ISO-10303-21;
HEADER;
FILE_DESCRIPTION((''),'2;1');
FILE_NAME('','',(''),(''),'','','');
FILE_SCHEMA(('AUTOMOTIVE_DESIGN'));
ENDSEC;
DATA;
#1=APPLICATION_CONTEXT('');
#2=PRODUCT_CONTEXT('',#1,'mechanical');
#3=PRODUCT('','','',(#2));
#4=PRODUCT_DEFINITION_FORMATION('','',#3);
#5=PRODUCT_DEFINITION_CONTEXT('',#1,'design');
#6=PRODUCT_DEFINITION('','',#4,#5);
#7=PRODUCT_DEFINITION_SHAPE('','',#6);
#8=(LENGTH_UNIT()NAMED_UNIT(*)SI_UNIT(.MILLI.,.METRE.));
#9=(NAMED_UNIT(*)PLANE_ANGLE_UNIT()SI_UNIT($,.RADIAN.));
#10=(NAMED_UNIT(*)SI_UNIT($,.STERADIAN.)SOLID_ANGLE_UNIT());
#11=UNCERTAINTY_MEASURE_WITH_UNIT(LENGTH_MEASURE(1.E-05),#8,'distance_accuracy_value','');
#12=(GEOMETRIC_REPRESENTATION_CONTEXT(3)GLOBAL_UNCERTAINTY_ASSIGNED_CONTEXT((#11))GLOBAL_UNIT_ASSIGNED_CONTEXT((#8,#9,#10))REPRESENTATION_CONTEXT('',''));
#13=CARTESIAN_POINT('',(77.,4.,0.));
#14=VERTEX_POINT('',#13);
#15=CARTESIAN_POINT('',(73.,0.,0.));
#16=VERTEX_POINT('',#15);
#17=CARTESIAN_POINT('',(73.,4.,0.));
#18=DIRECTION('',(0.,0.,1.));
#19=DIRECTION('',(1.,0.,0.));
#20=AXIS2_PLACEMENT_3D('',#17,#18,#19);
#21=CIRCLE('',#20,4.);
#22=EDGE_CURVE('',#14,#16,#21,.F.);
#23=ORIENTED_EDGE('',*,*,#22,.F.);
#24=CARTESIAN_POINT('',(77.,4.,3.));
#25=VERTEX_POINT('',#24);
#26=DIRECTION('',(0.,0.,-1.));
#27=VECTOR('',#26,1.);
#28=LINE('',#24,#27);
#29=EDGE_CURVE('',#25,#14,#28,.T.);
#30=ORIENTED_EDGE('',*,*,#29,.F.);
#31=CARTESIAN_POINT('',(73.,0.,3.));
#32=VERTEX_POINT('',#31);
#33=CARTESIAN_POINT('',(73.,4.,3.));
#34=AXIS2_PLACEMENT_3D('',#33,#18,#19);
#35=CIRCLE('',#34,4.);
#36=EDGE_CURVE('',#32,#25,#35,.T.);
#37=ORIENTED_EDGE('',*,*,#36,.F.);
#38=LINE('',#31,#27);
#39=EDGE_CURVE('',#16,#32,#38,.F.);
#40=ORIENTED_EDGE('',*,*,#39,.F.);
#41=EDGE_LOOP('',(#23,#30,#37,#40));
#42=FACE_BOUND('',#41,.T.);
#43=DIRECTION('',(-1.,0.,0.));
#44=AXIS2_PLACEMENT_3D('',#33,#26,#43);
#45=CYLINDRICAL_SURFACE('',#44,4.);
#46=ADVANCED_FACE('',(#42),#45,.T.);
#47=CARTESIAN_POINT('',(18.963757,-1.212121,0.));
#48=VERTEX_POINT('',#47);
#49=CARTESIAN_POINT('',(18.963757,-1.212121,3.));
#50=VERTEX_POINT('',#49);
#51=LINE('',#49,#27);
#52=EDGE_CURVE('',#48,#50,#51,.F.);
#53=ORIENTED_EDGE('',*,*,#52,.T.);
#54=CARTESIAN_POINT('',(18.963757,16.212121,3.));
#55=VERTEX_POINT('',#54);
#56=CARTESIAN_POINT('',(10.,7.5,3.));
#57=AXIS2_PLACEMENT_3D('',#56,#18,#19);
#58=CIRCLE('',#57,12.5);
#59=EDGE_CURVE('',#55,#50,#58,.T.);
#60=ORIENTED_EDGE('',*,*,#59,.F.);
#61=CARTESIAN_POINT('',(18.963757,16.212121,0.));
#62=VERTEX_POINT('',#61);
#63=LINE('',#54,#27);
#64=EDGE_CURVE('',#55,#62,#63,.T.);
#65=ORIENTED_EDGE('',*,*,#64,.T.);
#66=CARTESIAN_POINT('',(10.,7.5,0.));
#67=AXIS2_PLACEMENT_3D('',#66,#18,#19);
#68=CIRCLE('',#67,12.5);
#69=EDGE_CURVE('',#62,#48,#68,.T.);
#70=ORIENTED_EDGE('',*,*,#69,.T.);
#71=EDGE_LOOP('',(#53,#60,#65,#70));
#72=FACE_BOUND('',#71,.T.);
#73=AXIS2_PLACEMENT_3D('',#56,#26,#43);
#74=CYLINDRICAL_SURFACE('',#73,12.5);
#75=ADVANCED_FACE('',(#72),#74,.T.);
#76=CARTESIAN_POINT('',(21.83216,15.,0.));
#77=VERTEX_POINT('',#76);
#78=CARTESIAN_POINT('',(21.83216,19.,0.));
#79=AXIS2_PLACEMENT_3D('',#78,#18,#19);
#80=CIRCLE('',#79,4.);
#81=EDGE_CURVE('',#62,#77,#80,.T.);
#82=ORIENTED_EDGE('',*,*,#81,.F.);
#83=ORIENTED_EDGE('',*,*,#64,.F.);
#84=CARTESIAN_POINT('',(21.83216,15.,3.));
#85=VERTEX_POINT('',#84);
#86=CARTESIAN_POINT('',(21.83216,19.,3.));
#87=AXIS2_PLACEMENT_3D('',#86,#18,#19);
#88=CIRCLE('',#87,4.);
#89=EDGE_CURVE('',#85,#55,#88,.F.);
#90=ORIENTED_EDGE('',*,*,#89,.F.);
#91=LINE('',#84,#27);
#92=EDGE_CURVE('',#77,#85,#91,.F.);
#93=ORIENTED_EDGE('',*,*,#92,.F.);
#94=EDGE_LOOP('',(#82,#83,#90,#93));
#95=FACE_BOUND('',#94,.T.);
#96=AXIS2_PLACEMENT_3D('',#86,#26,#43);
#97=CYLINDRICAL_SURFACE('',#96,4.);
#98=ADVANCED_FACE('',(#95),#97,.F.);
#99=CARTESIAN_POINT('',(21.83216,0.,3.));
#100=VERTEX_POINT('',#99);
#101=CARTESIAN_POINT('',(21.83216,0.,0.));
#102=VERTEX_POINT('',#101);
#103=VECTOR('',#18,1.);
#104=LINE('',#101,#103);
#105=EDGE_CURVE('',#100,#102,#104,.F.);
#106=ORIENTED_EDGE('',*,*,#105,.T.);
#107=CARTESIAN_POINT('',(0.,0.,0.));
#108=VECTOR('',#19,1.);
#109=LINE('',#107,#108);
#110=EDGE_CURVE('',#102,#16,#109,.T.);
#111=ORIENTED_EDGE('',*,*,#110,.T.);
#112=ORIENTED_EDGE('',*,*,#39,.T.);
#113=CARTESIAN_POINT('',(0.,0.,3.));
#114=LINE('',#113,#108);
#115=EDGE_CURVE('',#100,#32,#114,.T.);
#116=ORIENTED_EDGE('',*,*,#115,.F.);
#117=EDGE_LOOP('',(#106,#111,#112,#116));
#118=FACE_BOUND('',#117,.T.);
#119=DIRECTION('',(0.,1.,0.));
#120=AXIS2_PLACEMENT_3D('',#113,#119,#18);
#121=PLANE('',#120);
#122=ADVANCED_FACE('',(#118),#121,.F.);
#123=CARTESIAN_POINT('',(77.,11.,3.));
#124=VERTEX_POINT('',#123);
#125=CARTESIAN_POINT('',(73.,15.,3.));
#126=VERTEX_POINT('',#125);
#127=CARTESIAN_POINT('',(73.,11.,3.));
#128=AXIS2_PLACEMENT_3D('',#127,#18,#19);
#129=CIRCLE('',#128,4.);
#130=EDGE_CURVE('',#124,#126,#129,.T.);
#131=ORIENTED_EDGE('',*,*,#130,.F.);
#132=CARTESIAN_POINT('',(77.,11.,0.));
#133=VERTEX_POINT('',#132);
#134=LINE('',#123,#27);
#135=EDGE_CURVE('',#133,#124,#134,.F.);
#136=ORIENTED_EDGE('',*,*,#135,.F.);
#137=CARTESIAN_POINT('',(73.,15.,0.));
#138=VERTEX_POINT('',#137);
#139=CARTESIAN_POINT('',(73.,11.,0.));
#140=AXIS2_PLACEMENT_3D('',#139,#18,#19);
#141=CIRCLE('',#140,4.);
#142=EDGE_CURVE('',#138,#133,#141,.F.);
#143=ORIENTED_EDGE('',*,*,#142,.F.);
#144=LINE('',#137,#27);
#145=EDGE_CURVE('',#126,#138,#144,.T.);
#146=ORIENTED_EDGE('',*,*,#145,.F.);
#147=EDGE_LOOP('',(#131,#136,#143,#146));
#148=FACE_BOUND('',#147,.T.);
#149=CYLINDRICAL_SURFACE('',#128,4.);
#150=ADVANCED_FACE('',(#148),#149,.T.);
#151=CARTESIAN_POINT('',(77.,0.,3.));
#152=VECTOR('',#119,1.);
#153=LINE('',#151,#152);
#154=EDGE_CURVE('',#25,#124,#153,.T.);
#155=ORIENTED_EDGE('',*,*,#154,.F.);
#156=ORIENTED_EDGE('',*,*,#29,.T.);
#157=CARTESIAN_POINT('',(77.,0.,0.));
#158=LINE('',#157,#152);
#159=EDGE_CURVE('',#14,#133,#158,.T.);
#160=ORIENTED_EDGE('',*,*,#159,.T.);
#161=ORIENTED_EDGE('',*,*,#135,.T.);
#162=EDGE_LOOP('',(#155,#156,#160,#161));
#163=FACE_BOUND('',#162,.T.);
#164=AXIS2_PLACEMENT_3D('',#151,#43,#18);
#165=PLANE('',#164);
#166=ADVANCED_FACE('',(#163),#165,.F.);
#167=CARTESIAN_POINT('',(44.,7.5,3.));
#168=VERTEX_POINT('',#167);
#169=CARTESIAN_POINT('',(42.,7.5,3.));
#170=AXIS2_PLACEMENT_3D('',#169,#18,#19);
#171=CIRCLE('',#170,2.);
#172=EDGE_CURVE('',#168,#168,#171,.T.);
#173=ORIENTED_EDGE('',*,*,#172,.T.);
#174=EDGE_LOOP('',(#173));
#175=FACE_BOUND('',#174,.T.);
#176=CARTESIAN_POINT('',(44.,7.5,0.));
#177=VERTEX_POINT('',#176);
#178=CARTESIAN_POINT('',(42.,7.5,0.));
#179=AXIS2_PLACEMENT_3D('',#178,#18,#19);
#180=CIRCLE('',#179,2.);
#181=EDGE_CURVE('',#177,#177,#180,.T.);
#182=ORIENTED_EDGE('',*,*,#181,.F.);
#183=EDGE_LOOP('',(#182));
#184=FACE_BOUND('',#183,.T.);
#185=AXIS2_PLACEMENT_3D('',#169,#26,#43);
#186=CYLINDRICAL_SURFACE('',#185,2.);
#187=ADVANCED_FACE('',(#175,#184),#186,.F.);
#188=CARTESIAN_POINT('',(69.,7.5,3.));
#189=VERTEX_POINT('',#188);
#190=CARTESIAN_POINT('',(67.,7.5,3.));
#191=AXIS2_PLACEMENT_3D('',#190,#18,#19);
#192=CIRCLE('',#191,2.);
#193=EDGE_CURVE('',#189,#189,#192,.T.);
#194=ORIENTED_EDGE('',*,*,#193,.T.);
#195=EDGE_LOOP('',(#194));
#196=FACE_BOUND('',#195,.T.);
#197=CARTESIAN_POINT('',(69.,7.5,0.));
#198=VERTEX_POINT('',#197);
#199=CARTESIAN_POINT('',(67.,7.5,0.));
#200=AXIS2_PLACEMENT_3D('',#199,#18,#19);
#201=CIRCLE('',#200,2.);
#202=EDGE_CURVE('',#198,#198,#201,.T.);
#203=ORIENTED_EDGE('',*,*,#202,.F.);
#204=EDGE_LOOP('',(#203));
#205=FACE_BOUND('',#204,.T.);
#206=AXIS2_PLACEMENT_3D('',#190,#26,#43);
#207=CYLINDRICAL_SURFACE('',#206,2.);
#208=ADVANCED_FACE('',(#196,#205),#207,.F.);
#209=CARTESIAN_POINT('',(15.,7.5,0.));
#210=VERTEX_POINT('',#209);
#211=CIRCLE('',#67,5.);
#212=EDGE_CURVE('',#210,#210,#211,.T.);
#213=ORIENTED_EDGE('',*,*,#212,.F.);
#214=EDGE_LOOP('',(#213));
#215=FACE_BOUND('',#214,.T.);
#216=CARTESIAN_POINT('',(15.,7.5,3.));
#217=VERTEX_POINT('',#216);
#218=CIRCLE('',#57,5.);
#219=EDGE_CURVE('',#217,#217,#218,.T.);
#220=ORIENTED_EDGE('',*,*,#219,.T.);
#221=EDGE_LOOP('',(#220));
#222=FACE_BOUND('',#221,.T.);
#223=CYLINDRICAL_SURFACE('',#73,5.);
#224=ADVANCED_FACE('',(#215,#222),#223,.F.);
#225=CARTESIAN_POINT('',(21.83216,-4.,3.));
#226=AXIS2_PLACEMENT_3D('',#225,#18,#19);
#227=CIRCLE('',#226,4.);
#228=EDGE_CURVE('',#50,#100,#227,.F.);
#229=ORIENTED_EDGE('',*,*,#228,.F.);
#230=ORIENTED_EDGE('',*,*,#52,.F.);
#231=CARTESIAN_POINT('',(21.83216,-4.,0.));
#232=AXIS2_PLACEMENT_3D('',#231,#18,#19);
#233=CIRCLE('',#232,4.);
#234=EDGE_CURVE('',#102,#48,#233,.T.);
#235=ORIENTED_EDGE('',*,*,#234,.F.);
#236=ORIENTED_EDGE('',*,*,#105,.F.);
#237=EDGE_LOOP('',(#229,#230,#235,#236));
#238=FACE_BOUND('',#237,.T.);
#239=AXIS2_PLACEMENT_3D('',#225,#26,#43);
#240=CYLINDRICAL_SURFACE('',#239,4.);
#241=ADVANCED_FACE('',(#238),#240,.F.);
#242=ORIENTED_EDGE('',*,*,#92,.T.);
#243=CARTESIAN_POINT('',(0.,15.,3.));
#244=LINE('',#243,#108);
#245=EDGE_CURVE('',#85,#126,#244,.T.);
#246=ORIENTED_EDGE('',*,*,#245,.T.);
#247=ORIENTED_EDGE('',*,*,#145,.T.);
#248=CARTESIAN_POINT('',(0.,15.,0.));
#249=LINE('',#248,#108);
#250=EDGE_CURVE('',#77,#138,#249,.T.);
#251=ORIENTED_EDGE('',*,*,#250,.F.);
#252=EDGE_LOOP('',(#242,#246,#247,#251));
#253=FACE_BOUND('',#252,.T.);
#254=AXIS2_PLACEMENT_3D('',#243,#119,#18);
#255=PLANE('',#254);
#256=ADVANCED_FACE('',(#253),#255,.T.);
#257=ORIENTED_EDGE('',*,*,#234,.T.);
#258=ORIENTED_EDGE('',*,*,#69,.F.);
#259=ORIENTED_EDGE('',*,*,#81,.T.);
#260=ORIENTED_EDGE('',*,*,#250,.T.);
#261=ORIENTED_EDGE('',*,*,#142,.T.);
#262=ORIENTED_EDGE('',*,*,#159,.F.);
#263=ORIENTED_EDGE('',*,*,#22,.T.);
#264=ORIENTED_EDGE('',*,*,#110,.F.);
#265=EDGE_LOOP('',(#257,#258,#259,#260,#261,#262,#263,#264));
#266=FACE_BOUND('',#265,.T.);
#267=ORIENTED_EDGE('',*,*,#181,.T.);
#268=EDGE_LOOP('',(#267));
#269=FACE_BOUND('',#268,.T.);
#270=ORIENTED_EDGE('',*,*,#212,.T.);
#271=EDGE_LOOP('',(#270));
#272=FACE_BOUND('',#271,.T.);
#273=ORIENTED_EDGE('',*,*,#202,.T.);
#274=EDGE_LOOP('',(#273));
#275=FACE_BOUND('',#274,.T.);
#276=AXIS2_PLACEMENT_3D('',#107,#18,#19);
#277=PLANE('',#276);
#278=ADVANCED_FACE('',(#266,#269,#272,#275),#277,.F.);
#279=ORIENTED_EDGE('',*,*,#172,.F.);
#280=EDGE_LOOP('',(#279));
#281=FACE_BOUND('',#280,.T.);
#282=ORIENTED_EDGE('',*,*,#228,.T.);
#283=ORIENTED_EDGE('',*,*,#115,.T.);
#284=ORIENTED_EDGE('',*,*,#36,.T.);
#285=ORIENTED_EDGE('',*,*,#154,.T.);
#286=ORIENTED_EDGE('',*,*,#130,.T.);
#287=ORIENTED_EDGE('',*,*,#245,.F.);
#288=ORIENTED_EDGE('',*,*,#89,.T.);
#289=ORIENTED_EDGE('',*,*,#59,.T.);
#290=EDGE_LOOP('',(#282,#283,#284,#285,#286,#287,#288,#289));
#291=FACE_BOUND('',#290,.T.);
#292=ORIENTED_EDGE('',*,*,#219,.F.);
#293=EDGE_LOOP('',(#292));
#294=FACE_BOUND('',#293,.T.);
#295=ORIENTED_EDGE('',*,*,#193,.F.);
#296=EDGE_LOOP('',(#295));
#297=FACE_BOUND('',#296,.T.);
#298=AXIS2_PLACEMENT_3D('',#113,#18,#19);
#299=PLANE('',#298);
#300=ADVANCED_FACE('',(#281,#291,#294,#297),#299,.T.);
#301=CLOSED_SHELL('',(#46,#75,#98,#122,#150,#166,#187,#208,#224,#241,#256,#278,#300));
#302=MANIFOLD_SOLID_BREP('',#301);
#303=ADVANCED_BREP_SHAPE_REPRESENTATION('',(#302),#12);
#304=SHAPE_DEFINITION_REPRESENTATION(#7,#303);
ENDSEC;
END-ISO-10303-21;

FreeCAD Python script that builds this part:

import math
import FreeCAD as App
import Part
import Sketcher

V = App.Vector
Q = App.Units.Quantity


def edges_at(feature, points):
    """Names of the edges that pass closest to the given points."""
    edges = feature.Shape.Edges
    near = lambda p: min(range(len(edges)), key=lambda i: edges[i].distToShape(Part.Vertex(*p))[0])
    return sorted({f"Edge{near(p) + 1}" for p in points})

doc = App.newDocument("Part")
body = doc.addObject("PartDesign::Body", "Body")

# Sketch on XY plane
sketch1 = doc.addObject("Sketcher::SketchObject", "Sketch")
body.addObject(sketch1)
sketch1.AttachmentSupport = (doc.XY_Plane, [""])
sketch1.MapMode = "FlatFace"
sketch1.addGeometry([
    Part.LineSegment(V(20, 0, 0), V(77, 0, 0)),  # 0
    Part.LineSegment(V(77, 0, 0), V(77, 15, 0)),  # 1
    Part.LineSegment(V(77, 15, 0), V(20, 15, 0)),  # 2
    Part.ArcOfCircle(Part.Circle(V(10, 7.5, 0), V(0, 0, 1), 12.5), math.radians(36.869898), math.radians(323.130102)),  # 3
    Part.Circle(V(10, 7.5, 0), V(0, 0, 1), 5),  # 4
    Part.Circle(V(42, 7.5, 0), V(0, 0, 1), 2),  # 5
    Part.Circle(V(67, 7.5, 0), V(0, 0, 1), 2),  # 6
], False)
sketch1.addConstraint([
    Sketcher.Constraint("Coincident", 0, 2, 1, 1),
    Sketcher.Constraint("Coincident", 1, 2, 2, 1),
    Sketcher.Constraint("Coincident", 2, 2, 3, 1),
    Sketcher.Constraint("Coincident", 3, 2, 0, 1),
    Sketcher.Constraint("Horizontal", 0),
    Sketcher.Constraint("Vertical", 1),
    Sketcher.Constraint("Horizontal", 2),
    Sketcher.Constraint("Coincident", 4, 3, 3, 3),
    Sketcher.Constraint("Equal", 5, 6),
    Sketcher.Constraint("PointOnObject", 0, 2, -1),
    Sketcher.Constraint("Horizontal", 4, 3, 5, 3),
    Sketcher.Constraint("Horizontal", 5, 3, 6, 3),
    Sketcher.Constraint("Vertical", 2, 2, 3, 2),
    Sketcher.Constraint("Diameter", 4, Q("10 mm")),
    Sketcher.Constraint("Diameter", 5, Q("4 mm")),
    Sketcher.Constraint("Radius", 3, Q("12.5 mm")),
    Sketcher.Constraint("DistanceX", 0, 1, 0, 2, Q("57 mm")),
    Sketcher.Constraint("DistanceY", 1, 1, 1, 2, Q("15 mm")),
    Sketcher.Constraint("DistanceX", -1, 1, 3, 3, Q("10 mm")),
    Sketcher.Constraint("DistanceX", -1, 1, 5, 3, Q("42 mm")),
    Sketcher.Constraint("DistanceX", -1, 1, 6, 3, Q("67 mm")),
])
pad1 = doc.addObject("PartDesign::Pad", "Pad")
body.addObject(pad1)
pad1.Profile = sketch1
pad1.Length = 3
doc.recompute()

fillet = doc.addObject("PartDesign::Fillet", "Fillet")
body.addObject(fillet)
fillet.Base = (pad1, edges_at(pad1, [
    (20, 15, 1.5),
    (77, 15, 1.5),
    (77, 0, 1.5),
    (20, 0, 1.5),
]))
fillet.Radius = 4

doc.recompute()
